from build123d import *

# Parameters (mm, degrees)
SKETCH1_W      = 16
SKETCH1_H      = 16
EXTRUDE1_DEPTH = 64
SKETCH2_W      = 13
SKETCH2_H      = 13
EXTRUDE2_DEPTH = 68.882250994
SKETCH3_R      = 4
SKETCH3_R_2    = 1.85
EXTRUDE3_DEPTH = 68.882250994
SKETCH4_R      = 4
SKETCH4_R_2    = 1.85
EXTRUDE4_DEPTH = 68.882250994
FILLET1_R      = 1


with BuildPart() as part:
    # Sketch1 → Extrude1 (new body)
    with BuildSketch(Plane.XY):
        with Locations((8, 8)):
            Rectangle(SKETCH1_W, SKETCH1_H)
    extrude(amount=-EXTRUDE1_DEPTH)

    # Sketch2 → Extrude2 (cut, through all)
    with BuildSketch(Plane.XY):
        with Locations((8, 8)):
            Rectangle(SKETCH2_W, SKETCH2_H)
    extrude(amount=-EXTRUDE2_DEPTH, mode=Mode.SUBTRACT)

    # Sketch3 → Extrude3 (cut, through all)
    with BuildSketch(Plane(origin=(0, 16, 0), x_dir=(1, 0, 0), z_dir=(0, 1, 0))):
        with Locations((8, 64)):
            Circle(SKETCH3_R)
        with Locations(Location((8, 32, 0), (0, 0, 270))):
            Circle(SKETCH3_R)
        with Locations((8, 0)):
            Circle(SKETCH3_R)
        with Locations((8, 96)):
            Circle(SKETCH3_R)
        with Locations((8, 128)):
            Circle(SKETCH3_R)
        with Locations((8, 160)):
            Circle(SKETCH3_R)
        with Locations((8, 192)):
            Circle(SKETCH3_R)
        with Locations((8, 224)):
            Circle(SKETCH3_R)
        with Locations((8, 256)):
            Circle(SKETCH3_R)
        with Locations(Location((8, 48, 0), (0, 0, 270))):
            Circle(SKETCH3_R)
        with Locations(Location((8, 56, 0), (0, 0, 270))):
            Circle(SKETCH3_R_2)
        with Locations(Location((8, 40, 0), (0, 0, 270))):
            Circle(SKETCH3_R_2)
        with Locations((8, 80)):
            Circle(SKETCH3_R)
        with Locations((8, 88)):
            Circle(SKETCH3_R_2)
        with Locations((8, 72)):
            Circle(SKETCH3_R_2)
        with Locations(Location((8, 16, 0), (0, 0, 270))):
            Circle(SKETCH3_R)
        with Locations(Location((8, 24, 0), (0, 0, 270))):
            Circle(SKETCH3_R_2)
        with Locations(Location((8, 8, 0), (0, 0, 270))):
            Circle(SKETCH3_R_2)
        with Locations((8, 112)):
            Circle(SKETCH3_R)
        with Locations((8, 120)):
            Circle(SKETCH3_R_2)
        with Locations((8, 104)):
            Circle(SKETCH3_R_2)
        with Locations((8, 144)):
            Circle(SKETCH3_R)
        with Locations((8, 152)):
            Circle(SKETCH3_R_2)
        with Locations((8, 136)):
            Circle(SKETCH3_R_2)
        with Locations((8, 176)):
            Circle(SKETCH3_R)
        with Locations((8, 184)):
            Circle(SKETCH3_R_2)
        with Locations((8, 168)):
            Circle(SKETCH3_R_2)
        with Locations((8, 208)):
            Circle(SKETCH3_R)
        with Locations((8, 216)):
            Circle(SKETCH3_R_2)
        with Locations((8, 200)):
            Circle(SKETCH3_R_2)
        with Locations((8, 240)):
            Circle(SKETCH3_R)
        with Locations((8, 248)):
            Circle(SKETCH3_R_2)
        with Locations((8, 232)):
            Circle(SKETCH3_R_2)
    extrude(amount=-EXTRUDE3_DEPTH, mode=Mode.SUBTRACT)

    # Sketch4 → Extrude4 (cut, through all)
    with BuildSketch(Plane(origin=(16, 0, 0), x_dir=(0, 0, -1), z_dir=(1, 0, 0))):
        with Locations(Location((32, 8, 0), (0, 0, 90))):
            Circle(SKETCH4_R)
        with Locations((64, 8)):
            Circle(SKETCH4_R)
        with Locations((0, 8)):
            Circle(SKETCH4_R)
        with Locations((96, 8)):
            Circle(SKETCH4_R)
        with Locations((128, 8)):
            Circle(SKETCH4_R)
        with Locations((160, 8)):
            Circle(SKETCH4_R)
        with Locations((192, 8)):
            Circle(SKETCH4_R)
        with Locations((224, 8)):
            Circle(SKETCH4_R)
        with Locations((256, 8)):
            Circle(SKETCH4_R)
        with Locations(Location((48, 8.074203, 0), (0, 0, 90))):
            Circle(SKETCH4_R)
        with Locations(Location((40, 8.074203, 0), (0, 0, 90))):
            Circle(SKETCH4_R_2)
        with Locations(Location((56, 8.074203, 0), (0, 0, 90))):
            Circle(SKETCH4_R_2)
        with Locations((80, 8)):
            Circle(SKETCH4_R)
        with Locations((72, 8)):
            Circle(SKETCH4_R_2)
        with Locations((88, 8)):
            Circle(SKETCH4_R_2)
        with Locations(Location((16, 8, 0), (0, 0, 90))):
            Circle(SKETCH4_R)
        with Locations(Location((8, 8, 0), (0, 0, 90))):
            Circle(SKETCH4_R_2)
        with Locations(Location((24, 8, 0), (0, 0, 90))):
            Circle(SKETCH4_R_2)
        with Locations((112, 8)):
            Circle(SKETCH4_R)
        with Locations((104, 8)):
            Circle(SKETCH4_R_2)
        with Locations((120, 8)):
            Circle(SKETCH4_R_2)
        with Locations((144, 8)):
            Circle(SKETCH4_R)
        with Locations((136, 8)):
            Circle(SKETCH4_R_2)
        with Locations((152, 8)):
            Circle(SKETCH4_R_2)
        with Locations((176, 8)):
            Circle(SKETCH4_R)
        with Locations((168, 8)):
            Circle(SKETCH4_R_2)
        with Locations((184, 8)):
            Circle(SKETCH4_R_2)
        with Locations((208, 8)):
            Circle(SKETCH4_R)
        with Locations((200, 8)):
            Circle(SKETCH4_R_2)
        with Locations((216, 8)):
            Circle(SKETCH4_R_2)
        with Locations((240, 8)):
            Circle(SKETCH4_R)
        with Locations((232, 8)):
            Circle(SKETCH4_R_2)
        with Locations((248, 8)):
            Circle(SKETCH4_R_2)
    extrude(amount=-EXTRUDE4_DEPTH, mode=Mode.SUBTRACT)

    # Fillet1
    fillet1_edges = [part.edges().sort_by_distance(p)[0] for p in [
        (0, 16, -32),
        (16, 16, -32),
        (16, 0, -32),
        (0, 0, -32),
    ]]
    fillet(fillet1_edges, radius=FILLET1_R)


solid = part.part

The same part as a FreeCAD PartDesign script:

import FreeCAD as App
import Part
import Sketcher
from FreeCAD import Vector


def edges_at(feature, points):
    """Names of the edges that pass closest to the given points."""
    edges = feature.Shape.Edges
    near = lambda p: min(range(len(edges)), key=lambda i: edges[i].distToShape(Part.Vertex(*p))[0])
    return sorted({f"Edge{near(p) + 1}" for p in points})


def add_polygon(sketch, points):
    """Adds a closed chain of lines whose ends are joined by coincident constraints."""
    first, n = sketch.GeometryCount, len(points)
    for a, b in zip(points, points[1:] + points[:1]):
        sketch.addGeometry(Part.LineSegment(App.Vector(*a, 0), App.Vector(*b, 0)), False)
    for i in range(n):
        sketch.addConstraint(Sketcher.Constraint("Coincident", first + i, 2, first + (i + 1) % n, 1))

doc = App.newDocument("Part")
body = doc.addObject("PartDesign::Body", "Body")

sketch1 = doc.addObject("Sketcher::SketchObject", "Sketch")
body.addObject(sketch1)
sketch1.AttachmentSupport = (doc.XY_Plane, [""])
sketch1.MapMode = "FlatFace"
add_polygon(sketch1, [(0, 16), (0, 0), (16, 0), (16, 16)])
sketch1.addConstraint([
    Sketcher.Constraint("Vertical", 0),
    Sketcher.Constraint("Horizontal", 1),
    Sketcher.Constraint("Vertical", 2),
    Sketcher.Constraint("Horizontal", 3),
    Sketcher.Constraint("Coincident", 0, 2, -1, 1),
    Sketcher.Constraint("Equal", 3, 0),
    Sketcher.Constraint("DistanceX", 1, 1, 1, 2, 16.0),
])
pad1 = doc.addObject("PartDesign::Pad", "Pad")
body.addObject(pad1)
pad1.Profile = sketch1
pad1.Length = 64
pad1.Reversed = True

sketch2 = doc.addObject("Sketcher::SketchObject", "Sketch001")
body.addObject(sketch2)
sketch2.AttachmentSupport = (doc.XY_Plane, [""])
sketch2.MapMode = "FlatFace"
add_polygon(sketch2, [(2, 14), (2, 2), (14, 2), (14, 14)])
sketch2.addConstraint([
    Sketcher.Constraint("Vertical", 0),
    Sketcher.Constraint("Horizontal", 1),
    Sketcher.Constraint("Vertical", 2),
    Sketcher.Constraint("Horizontal", 3),
    Sketcher.Constraint("Equal", 3, 0),
    Sketcher.Constraint("DistanceX", 1, 1, 1, 2, 13.0),
    Sketcher.Constraint("DistanceX", -1, 1, 0, 2, 1.5),
    Sketcher.Constraint("DistanceY", -1, 1, 0, 2, 1.5),
])
pocket1 = doc.addObject("PartDesign::Pocket", "Pocket")
body.addObject(pocket1)
pocket1.Profile = sketch2
pocket1.Type = "ThroughAll"

sketch3 = doc.addObject("Sketcher::SketchObject", "Sketch002")
body.addObject(sketch3)
sketch3.AttachmentSupport = (doc.XZ_Plane, [""])
sketch3.MapMode = "FlatFace"
sketch3.AttachmentOffset = App.Placement(Vector(0, 0, -16), App.Rotation())
sketch3.addGeometry([
    Part.Circle(Vector(8, -64, 0), Vector(0, 0, 1), 4),
    Part.Circle(Vector(8, -32, 0), Vector(0, 0, 1), 4),
    Part.Circle(Vector(8, 0, 0), Vector(0, 0, 1), 4),
    Part.Circle(Vector(8, -96, 0), Vector(0, 0, 1), 4),
    Part.Circle(Vector(8, -128, 0), Vector(0, 0, 1), 4),
    Part.Circle(Vector(8, -160, 0), Vector(0, 0, 1), 4),
    Part.Circle(Vector(8, -192, 0), Vector(0, 0, 1), 4),
    Part.Circle(Vector(8, -224, 0), Vector(0, 0, 1), 4),
    Part.Circle(Vector(8, -256, 0), Vector(0, 0, 1), 4),
    Part.Circle(Vector(8, -48, 0), Vector(0, 0, 1), 4),
    Part.Circle(Vector(8, -56, 0), Vector(0, 0, 1), 1.9),
    Part.Circle(Vector(8, -40, 0), Vector(0, 0, 1), 1.9),
    Part.Circle(Vector(8, -80, 0), Vector(0, 0, 1), 4),
    Part.Circle(Vector(8, -88, 0), Vector(0, 0, 1), 1.9),
    Part.Circle(Vector(8, -72, 0), Vector(0, 0, 1), 1.9),
    Part.Circle(Vector(8, -16, 0), Vector(0, 0, 1), 4),
    Part.Circle(Vector(8, -24, 0), Vector(0, 0, 1), 1.9),
    Part.Circle(Vector(8, -8, 0), Vector(0, 0, 1), 1.9),
    Part.Circle(Vector(8, -112, 0), Vector(0, 0, 1), 4),
    Part.Circle(Vector(8, -120, 0), Vector(0, 0, 1), 1.9),
    Part.Circle(Vector(8, -104, 0), Vector(0, 0, 1), 1.9),
    Part.Circle(Vector(8, -144, 0), Vector(0, 0, 1), 4),
    Part.Circle(Vector(8, -152, 0), Vector(0, 0, 1), 1.9),
    Part.Circle(Vector(8, -136, 0), Vector(0, 0, 1), 1.9),
    Part.Circle(Vector(8, -176, 0), Vector(0, 0, 1), 4),
    Part.Circle(Vector(8, -184, 0), Vector(0, 0, 1), 1.9),
    Part.Circle(Vector(8, -168, 0), Vector(0, 0, 1), 1.9),
    Part.Circle(Vector(8, -208, 0), Vector(0, 0, 1), 4),
    Part.Circle(Vector(8, -216, 0), Vector(0, 0, 1), 1.9),
    Part.Circle(Vector(8, -200, 0), Vector(0, 0, 1), 1.9),
    Part.Circle(Vector(8, -240, 0), Vector(0, 0, 1), 4),
    Part.Circle(Vector(8, -248, 0), Vector(0, 0, 1), 1.9),
    Part.Circle(Vector(8, -232, 0), Vector(0, 0, 1), 1.9),
], False)
sketch3.addConstraint([
    Sketcher.Constraint("Equal", 0, 1),
    Sketcher.Constraint("Equal", 1, 2),
    Sketcher.Constraint("Equal", 2, 3),
    Sketcher.Constraint("Equal", 3, 4),
    Sketcher.Constraint("Equal", 4, 5),
    Sketcher.Constraint("Equal", 5, 6),
    Sketcher.Constraint("Equal", 6, 7),
    Sketcher.Constraint("Equal", 7, 8),
    Sketcher.Constraint("Equal", 8, 9),
    Sketcher.Constraint("Equal", 10, 11),
    Sketcher.Constraint("Equal", 9, 12),
    Sketcher.Constraint("Equal", 11, 13),
    Sketcher.Constraint("Equal", 13, 14),
    Sketcher.Constraint("Equal", 12, 15),
    Sketcher.Constraint("Equal", 14, 16),
    Sketcher.Constraint("Equal", 16, 17),
    Sketcher.Constraint("Equal", 15, 18),
    Sketcher.Constraint("Equal", 17, 19),
    Sketcher.Constraint("Equal", 19, 20),
    Sketcher.Constraint("Equal", 18, 21),
    Sketcher.Constraint("Equal", 20, 22),
    Sketcher.Constraint("Equal", 22, 23),
    Sketcher.Constraint("Equal", 21, 24),
    Sketcher.Constraint("Equal", 23, 25),
    Sketcher.Constraint("Equal", 25, 26),
    Sketcher.Constraint("Equal", 24, 27),
    Sketcher.Constraint("Equal", 26, 28),
    Sketcher.Constraint("Equal", 28, 29),
    Sketcher.Constraint("Equal", 27, 30),
    Sketcher.Constraint("Equal", 29, 31),
    Sketcher.Constraint("Equal", 31, 32),
    Sketcher.Constraint("PointOnObject", 2, 3, -1),
    Sketcher.Constraint("Vertical", 0, 3, 1, 3),
    Sketcher.Constraint("Vertical", 1, 3, 2, 3),
    Sketcher.Constraint("Vertical", 2, 3, 3, 3),
    Sketcher.Constraint("Vertical", 3, 3, 4, 3),
    Sketcher.Constraint("Vertical", 4, 3, 5, 3),
    Sketcher.Constraint("Vertical", 5, 3, 6, 3),
    Sketcher.Constraint("Vertical", 6, 3, 7, 3),
    Sketcher.Constraint("Vertical", 7, 3, 8, 3),
    Sketcher.Constraint("Vertical", 8, 3, 9, 3),
    Sketcher.Constraint("Vertical", 9, 3, 10, 3),
    Sketcher.Constraint("Vertical", 10, 3, 11, 3),
    Sketcher.Constraint("Vertical", 11, 3, 12, 3),
    Sketcher.Constraint("Vertical", 12, 3, 13, 3),
    Sketcher.Constraint("Vertical", 13, 3, 14, 3),
    Sketcher.Constraint("Vertical", 14, 3, 15, 3),
    Sketcher.Constraint("Vertical", 15, 3, 16, 3),
    Sketcher.Constraint("Vertical", 16, 3, 17, 3),
    Sketcher.Constraint("Vertical", 17, 3, 18, 3),
    Sketcher.Constraint("Vertical", 18, 3, 19, 3),
    Sketcher.Constraint("Vertical", 19, 3, 20, 3),
    Sketcher.Constraint("Vertical", 20, 3, 21, 3),
    Sketcher.Constraint("Vertical", 21, 3, 22, 3),
    Sketcher.Constraint("Vertical", 22, 3, 23, 3),
    Sketcher.Constraint("Vertical", 23, 3, 24, 3),
    Sketcher.Constraint("Vertical", 24, 3, 25, 3),
    Sketcher.Constraint("Vertical", 25, 3, 26, 3),
    Sketcher.Constraint("Vertical", 26, 3, 27, 3),
    Sketcher.Constraint("Vertical", 27, 3, 28, 3),
    Sketcher.Constraint("Vertical", 28, 3, 29, 3),
    Sketcher.Constraint("Vertical", 29, 3, 30, 3),
    Sketcher.Constraint("Vertical", 30, 3, 31, 3),
    Sketcher.Constraint("Vertical", 31, 3, 32, 3),
    Sketcher.Constraint("Diameter", 0, 8.0),
    Sketcher.Constraint("Diameter", 10, 3.7),
    Sketcher.Constraint("DistanceX", -1, 1, 0, 3, 8.0),
    Sketcher.Constraint("DistanceY", 0, 3, -1, 1, 64.0),
    Sketcher.Constraint("DistanceY", 1, 3, -1, 1, 32.0),
    Sketcher.Constraint("DistanceY", 3, 3, -1, 1, 96.0),
    Sketcher.Constraint("DistanceY", 4, 3, -1, 1, 128.0),
    Sketcher.Constraint("DistanceY", 5, 3, -1, 1, 160.0),
    Sketcher.Constraint("DistanceY", 6, 3, -1, 1, 192.0),
    Sketcher.Constraint("DistanceY", 7, 3, -1, 1, 224.0),
    Sketcher.Constraint("DistanceY", 8, 3, -1, 1, 256.0),
    Sketcher.Constraint("DistanceY", 9, 3, -1, 1, 48.0),
    Sketcher.Constraint("DistanceY", 10, 3, -1, 1, 56.0),
    Sketcher.Constraint("DistanceY", 11, 3, -1, 1, 40.0),
    Sketcher.Constraint("DistanceY", 12, 3, -1, 1, 80.0),
    Sketcher.Constraint("DistanceY", 13, 3, -1, 1, 88.0),
    Sketcher.Constraint("DistanceY", 14, 3, -1, 1, 72.0),
    Sketcher.Constraint("DistanceY", 15, 3, -1, 1, 16.0),
    Sketcher.Constraint("DistanceY", 16, 3, -1, 1, 24.0),
    Sketcher.Constraint("DistanceY", 17, 3, -1, 1, 8.0),
    Sketcher.Constraint("DistanceY", 18, 3, -1, 1, 112.0),
    Sketcher.Constraint("DistanceY", 19, 3, -1, 1, 120.0),
    Sketcher.Constraint("DistanceY", 20, 3, -1, 1, 104.0),
    Sketcher.Constraint("DistanceY", 21, 3, -1, 1, 144.0),
    Sketcher.Constraint("DistanceY", 22, 3, -1, 1, 152.0),
    Sketcher.Constraint("DistanceY", 23, 3, -1, 1, 136.0),
    Sketcher.Constraint("DistanceY", 24, 3, -1, 1, 176.0),
    Sketcher.Constraint("DistanceY", 25, 3, -1, 1, 184.0),
    Sketcher.Constraint("DistanceY", 26, 3, -1, 1, 168.0),
    Sketcher.Constraint("DistanceY", 27, 3, -1, 1, 208.0),
    Sketcher.Constraint("DistanceY", 28, 3, -1, 1, 216.0),
    Sketcher.Constraint("DistanceY", 29, 3, -1, 1, 200.0),
    Sketcher.Constraint("DistanceY", 30, 3, -1, 1, 240.0),
    Sketcher.Constraint("DistanceY", 31, 3, -1, 1, 248.0),
    Sketcher.Constraint("DistanceY", 32, 3, -1, 1, 232.0),
])
pocket2 = doc.addObject("PartDesign::Pocket", "Pocket001")
body.addObject(pocket2)
pocket2.Profile = sketch3
pocket2.Type = "ThroughAll"
pocket2.Reversed = True

sketch4 = doc.addObject("Sketcher::SketchObject", "Sketch003")
body.addObject(sketch4)
sketch4.AttachmentSupport = (doc.YZ_Plane, [""])
sketch4.MapMode = "FlatFace"
sketch4.AttachmentOffset = App.Placement(Vector(0, 0, 16), App.Rotation())
sketch4.addGeometry([
    Part.Circle(Vector(8, -32, 0), Vector(0, 0, 1), 4),
    Part.Circle(Vector(8, -64, 0), Vector(0, 0, 1), 4),
    Part.Circle(Vector(8, 0, 0), Vector(0, 0, 1), 4),
    Part.Circle(Vector(8, -96, 0), Vector(0, 0, 1), 4),
    Part.Circle(Vector(8, -128, 0), Vector(0, 0, 1), 4),
    Part.Circle(Vector(8, -160, 0), Vector(0, 0, 1), 4),
    Part.Circle(Vector(8, -192, 0), Vector(0, 0, 1), 4),
    Part.Circle(Vector(8, -224, 0), Vector(0, 0, 1), 4),
    Part.Circle(Vector(8, -256, 0), Vector(0, 0, 1), 4),
    Part.Circle(Vector(8.1, -48, 0), Vector(0, 0, 1), 4),
    Part.Circle(Vector(8.1, -40, 0), Vector(0, 0, 1), 1.9),
    Part.Circle(Vector(8.1, -56, 0), Vector(0, 0, 1), 1.9),
    Part.Circle(Vector(8, -80, 0), Vector(0, 0, 1), 4),
    Part.Circle(Vector(8, -72, 0), Vector(0, 0, 1), 1.9),
    Part.Circle(Vector(8, -88, 0), Vector(0, 0, 1), 1.9),
    Part.Circle(Vector(8, -16, 0), Vector(0, 0, 1), 4),
    Part.Circle(Vector(8, -8, 0), Vector(0, 0, 1), 1.9),
    Part.Circle(Vector(8, -24, 0), Vector(0, 0, 1), 1.9),
    Part.Circle(Vector(8, -112, 0), Vector(0, 0, 1), 4),
    Part.Circle(Vector(8, -104, 0), Vector(0, 0, 1), 1.9),
    Part.Circle(Vector(8, -120, 0), Vector(0, 0, 1), 1.9),
    Part.Circle(Vector(8, -144, 0), Vector(0, 0, 1), 4),
    Part.Circle(Vector(8, -136, 0), Vector(0, 0, 1), 1.9),
    Part.Circle(Vector(8, -152, 0), Vector(0, 0, 1), 1.9),
    Part.Circle(Vector(8, -176, 0), Vector(0, 0, 1), 4),
    Part.Circle(Vector(8, -168, 0), Vector(0, 0, 1), 1.9),
    Part.Circle(Vector(8, -184, 0), Vector(0, 0, 1), 1.9),
    Part.Circle(Vector(8, -208, 0), Vector(0, 0, 1), 4),
    Part.Circle(Vector(8, -200, 0), Vector(0, 0, 1), 1.9),
    Part.Circle(Vector(8, -216, 0), Vector(0, 0, 1), 1.9),
    Part.Circle(Vector(8, -240, 0), Vector(0, 0, 1), 4),
    Part.Circle(Vector(8, -232, 0), Vector(0, 0, 1), 1.9),
    Part.Circle(Vector(8, -248, 0), Vector(0, 0, 1), 1.9),
], False)
sketch4.addConstraint([
    Sketcher.Constraint("Equal", 0, 1),
    Sketcher.Constraint("Equal", 1, 2),
    Sketcher.Constraint("Equal", 2, 3),
    Sketcher.Constraint("Equal", 3, 4),
    Sketcher.Constraint("Equal", 4, 5),
    Sketcher.Constraint("Equal", 5, 6),
    Sketcher.Constraint("Equal", 6, 7),
    Sketcher.Constraint("Equal", 7, 8),
    Sketcher.Constraint("Equal", 8, 9),
    Sketcher.Constraint("Equal", 10, 11),
    Sketcher.Constraint("Equal", 9, 12),
    Sketcher.Constraint("Equal", 11, 13),
    Sketcher.Constraint("Equal", 13, 14),
    Sketcher.Constraint("Equal", 12, 15),
    Sketcher.Constraint("Equal", 14, 16),
    Sketcher.Constraint("Equal", 16, 17),
    Sketcher.Constraint("Equal", 15, 18),
    Sketcher.Constraint("Equal", 17, 19),
    Sketcher.Constraint("Equal", 19, 20),
    Sketcher.Constraint("Equal", 18, 21),
    Sketcher.Constraint("Equal", 20, 22),
    Sketcher.Constraint("Equal", 22, 23),
    Sketcher.Constraint("Equal", 21, 24),
    Sketcher.Constraint("Equal", 23, 25),
    Sketcher.Constraint("Equal", 25, 26),
    Sketcher.Constraint("Equal", 24, 27),
    Sketcher.Constraint("Equal", 26, 28),
    Sketcher.Constraint("Equal", 28, 29),
    Sketcher.Constraint("Equal", 27, 30),
    Sketcher.Constraint("Equal", 29, 31),
    Sketcher.Constraint("Equal", 31, 32),
    Sketcher.Constraint("PointOnObject", 2, 3, -1),
    Sketcher.Constraint("Vertical", 0, 3, 1, 3),
    Sketcher.Constraint("Vertical", 1, 3, 2, 3),
    Sketcher.Constraint("Vertical", 2, 3, 3, 3),
    Sketcher.Constraint("Vertical", 3, 3, 4, 3),
    Sketcher.Constraint("Vertical", 4, 3, 5, 3),
    Sketcher.Constraint("Vertical", 5, 3, 6, 3),
    Sketcher.Constraint("Vertical", 6, 3, 7, 3),
    Sketcher.Constraint("Vertical", 7, 3, 8, 3),
    Sketcher.Constraint("Vertical", 9, 3, 10, 3),
    Sketcher.Constraint("Vertical", 10, 3, 11, 3),
    Sketcher.Constraint("Vertical", 8, 3, 12, 3),
    Sketcher.Constraint("Vertical", 12, 3, 13, 3),
    Sketcher.Constraint("Vertical", 13, 3, 14, 3),
    Sketcher.Constraint("Vertical", 14, 3, 15, 3),
    Sketcher.Constraint("Vertical", 15, 3, 16, 3),
    Sketcher.Constraint("Vertical", 16, 3, 17, 3),
    Sketcher.Constraint("Vertical", 17, 3, 18, 3),
    Sketcher.Constraint("Vertical", 18, 3, 19, 3),
    Sketcher.Constraint("Vertical", 19, 3, 20, 3),
    Sketcher.Constraint("Vertical", 20, 3, 21, 3),
    Sketcher.Constraint("Vertical", 21, 3, 22, 3),
    Sketcher.Constraint("Vertical", 22, 3, 23, 3),
    Sketcher.Constraint("Vertical", 23, 3, 24, 3),
    Sketcher.Constraint("Vertical", 24, 3, 25, 3),
    Sketcher.Constraint("Vertical", 25, 3, 26, 3),
    Sketcher.Constraint("Vertical", 26, 3, 27, 3),
    Sketcher.Constraint("Vertical", 27, 3, 28, 3),
    Sketcher.Constraint("Vertical", 28, 3, 29, 3),
    Sketcher.Constraint("Vertical", 29, 3, 30, 3),
    Sketcher.Constraint("Vertical", 30, 3, 31, 3),
    Sketcher.Constraint("Vertical", 31, 3, 32, 3),
    Sketcher.Constraint("Diameter", 0, 8.0),
    Sketcher.Constraint("Diameter", 10, 3.7),
    Sketcher.Constraint("DistanceX", -1, 1, 0, 3, 8.0),
    Sketcher.Constraint("DistanceY", 0, 3, -1, 1, 32.0),
    Sketcher.Constraint("DistanceY", 1, 3, -1, 1, 64.0),
    Sketcher.Constraint("DistanceY", 3, 3, -1, 1, 96.0),
    Sketcher.Constraint("DistanceY", 4, 3, -1, 1, 128.0),
    Sketcher.Constraint("DistanceY", 5, 3, -1, 1, 160.0),
    Sketcher.Constraint("DistanceY", 6, 3, -1, 1, 192.0),
    Sketcher.Constraint("DistanceY", 7, 3, -1, 1, 224.0),
    Sketcher.Constraint("DistanceY", 8, 3, -1, 1, 256.0),
    Sketcher.Constraint("DistanceY", 9, 3, -1, 1, 48.0),
    Sketcher.Constraint("DistanceY", 10, 3, -1, 1, 40.0),
    Sketcher.Constraint("DistanceY", 11, 3, -1, 1, 56.0),
    Sketcher.Constraint("DistanceY", 12, 3, -1, 1, 80.0),
    Sketcher.Constraint("DistanceY", 13, 3, -1, 1, 72.0),
    Sketcher.Constraint("DistanceY", 14, 3, -1, 1, 88.0),
    Sketcher.Constraint("DistanceY", 15, 3, -1, 1, 16.0),
    Sketcher.Constraint("DistanceY", 16, 3, -1, 1, 8.0),
    Sketcher.Constraint("DistanceY", 17, 3, -1, 1, 24.0),
    Sketcher.Constraint("DistanceY", 18, 3, -1, 1, 112.0),
    Sketcher.Constraint("DistanceY", 19, 3, -1, 1, 104.0),
    Sketcher.Constraint("DistanceY", 20, 3, -1, 1, 120.0),
    Sketcher.Constraint("DistanceY", 21, 3, -1, 1, 144.0),
    Sketcher.Constraint("DistanceY", 22, 3, -1, 1, 136.0),
    Sketcher.Constraint("DistanceY", 23, 3, -1, 1, 152.0),
    Sketcher.Constraint("DistanceY", 24, 3, -1, 1, 176.0),
    Sketcher.Constraint("DistanceY", 25, 3, -1, 1, 168.0),
    Sketcher.Constraint("DistanceY", 26, 3, -1, 1, 184.0),
    Sketcher.Constraint("DistanceY", 27, 3, -1, 1, 208.0),
    Sketcher.Constraint("DistanceY", 28, 3, -1, 1, 200.0),
    Sketcher.Constraint("DistanceY", 29, 3, -1, 1, 216.0),
    Sketcher.Constraint("DistanceY", 30, 3, -1, 1, 240.0),
    Sketcher.Constraint("DistanceY", 31, 3, -1, 1, 232.0),
    Sketcher.Constraint("DistanceY", 32, 3, -1, 1, 248.0),
    Sketcher.Constraint("DistanceX", -1, 1, 9, 3, 8.074203),
])
pocket3 = doc.addObject("PartDesign::Pocket", "Pocket002")
body.addObject(pocket3)
pocket3.Profile = sketch4
pocket3.Type = "ThroughAll"
doc.recompute()

fillet = doc.addObject("PartDesign::Fillet", "Fillet")
body.addObject(fillet)
fillet.Base = (pocket3, edges_at(pocket3, [
    (0, 16, -32),
    (16, 16, -32),
    (16, 0, -32),
    (0, 0, -32),
]))
fillet.Radius = 1

doc.recompute()
